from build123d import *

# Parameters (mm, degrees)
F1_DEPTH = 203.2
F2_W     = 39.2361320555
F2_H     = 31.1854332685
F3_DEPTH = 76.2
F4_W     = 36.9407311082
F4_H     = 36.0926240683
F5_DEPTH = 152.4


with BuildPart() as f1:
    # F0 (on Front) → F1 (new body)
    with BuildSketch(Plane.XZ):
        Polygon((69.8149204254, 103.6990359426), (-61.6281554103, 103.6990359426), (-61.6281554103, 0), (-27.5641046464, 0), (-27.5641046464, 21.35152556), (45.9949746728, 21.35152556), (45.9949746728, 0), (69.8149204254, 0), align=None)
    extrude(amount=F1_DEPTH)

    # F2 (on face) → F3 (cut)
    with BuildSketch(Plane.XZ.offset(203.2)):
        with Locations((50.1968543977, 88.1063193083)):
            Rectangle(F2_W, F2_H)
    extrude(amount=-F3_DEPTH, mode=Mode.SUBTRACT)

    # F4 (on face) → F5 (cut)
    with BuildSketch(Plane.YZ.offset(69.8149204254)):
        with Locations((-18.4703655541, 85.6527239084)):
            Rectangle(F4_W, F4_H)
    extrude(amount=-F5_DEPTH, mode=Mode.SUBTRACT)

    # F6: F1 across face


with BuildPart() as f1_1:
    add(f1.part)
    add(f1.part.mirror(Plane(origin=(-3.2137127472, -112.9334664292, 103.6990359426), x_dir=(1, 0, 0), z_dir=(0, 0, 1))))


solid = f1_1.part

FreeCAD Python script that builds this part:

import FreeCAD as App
import Part
import Sketcher
Q = App.Units.Quantity

doc = App.newDocument("Part")
body = doc.addObject("PartDesign::Body", "Body")

# Sketch on XZ plane
sketch1 = doc.addObject("Sketcher::SketchObject", "Sketch")
body.addObject(sketch1)
sketch1.AttachmentSupport = (doc.XZ_Plane, [""])
sketch1.MapMode = "FlatFace"
sketch1.addGeometry([
    Part.LineSegment(App.Vector(69.81492, 103.699036, 0), App.Vector(-61.628155, 103.699036, 0)),  # 0
    Part.LineSegment(App.Vector(-61.628155, 103.699036, 0), App.Vector(-61.628155, 0, 0)),  # 1
    Part.LineSegment(App.Vector(-61.628155, 0, 0), App.Vector(-27.564105, 0, 0)),  # 2
    Part.LineSegment(App.Vector(-27.564105, 0, 0), App.Vector(-27.564105, 21.351526, 0)),  # 3
    Part.LineSegment(App.Vector(-27.564105, 21.351526, 0), App.Vector(45.994975, 21.351526, 0)),  # 4
    Part.LineSegment(App.Vector(45.994975, 21.351526, 0), App.Vector(45.994975, 0, 0)),  # 5
    Part.LineSegment(App.Vector(45.994975, 0, 0), App.Vector(69.81492, 0, 0)),  # 6
    Part.LineSegment(App.Vector(69.81492, 0, 0), App.Vector(69.81492, 103.699036, 0)),  # 7
], False)
sketch1.addConstraint([
    Sketcher.Constraint("Coincident", 0, 2, 1, 1),
    Sketcher.Constraint("Coincident", 1, 2, 2, 1),
    Sketcher.Constraint("Coincident", 2, 2, 3, 1),
    Sketcher.Constraint("Coincident", 3, 2, 4, 1),
    Sketcher.Constraint("Coincident", 4, 2, 5, 1),
    Sketcher.Constraint("Coincident", 5, 2, 6, 1),
    Sketcher.Constraint("Coincident", 6, 2, 7, 1),
    Sketcher.Constraint("Coincident", 7, 2, 0, 1),
    Sketcher.Constraint("Horizontal", 0),
    Sketcher.Constraint("Vertical", 1),
    Sketcher.Constraint("Horizontal", 2),
    Sketcher.Constraint("Vertical", 3),
    Sketcher.Constraint("Horizontal", 4),
    Sketcher.Constraint("Vertical", 5),
    Sketcher.Constraint("Horizontal", 6),
    Sketcher.Constraint("Vertical", 7),
    Sketcher.Constraint("PointOnObject", 1, 2, -1),
    Sketcher.Constraint("PointOnObject", 5, 2, -1),
    Sketcher.Constraint("DistanceX", 2, 1, 2, 2, 34.064051),
    Sketcher.Constraint("DistanceX", 4, 1, 4, 2, 73.559079),
    Sketcher.Constraint("DistanceX", 0, 2, 0, 1, 131.443076),
    Sketcher.Constraint("DistanceY", 1, 2, 1, 1, 103.699036),
    Sketcher.Constraint("DistanceY", 3, 1, 3, 2, 21.351526),
    Sketcher.Constraint("DistanceX", -1, 1, 6, 2, 69.81492),
])
pad1 = doc.addObject("PartDesign::Pad", "Pad")
body.addObject(pad1)
pad1.Profile = sketch1
pad1.Length = Q("8 in")

# Sketch on XZ plane
sketch2 = doc.addObject("Sketcher::SketchObject", "Sketch001")
body.addObject(sketch2)
sketch2.AttachmentSupport = (doc.XZ_Plane, [""])
sketch2.MapMode = "FlatFace"
sketch2.AttachmentOffset = App.Placement(App.Vector(0, 0, 8 * 25.4), App.Rotation())
sketch2.addGeometry([
    Part.LineSegment(App.Vector(30.578788, 103.699036, 0), App.Vector(30.578788, 72.513603, 0)),
    Part.LineSegment(App.Vector(30.578788, 72.513603, 0), App.Vector(69.81492, 72.513603, 0)),
    Part.LineSegment(App.Vector(69.81492, 72.513603, 0), App.Vector(69.81492, 103.699036, 0)),
    Part.LineSegment(App.Vector(69.81492, 103.699036, 0), App.Vector(30.578788, 103.699036, 0)),
], False)
sketch2.addConstraint([
    Sketcher.Constraint("Coincident", 0, 2, 1, 1),
    Sketcher.Constraint("Coincident", 1, 2, 2, 1),
    Sketcher.Constraint("Coincident", 2, 2, 3, 1),
    Sketcher.Constraint("Coincident", 3, 2, 0, 1),
    Sketcher.Constraint("Vertical", 0),
    Sketcher.Constraint("Horizontal", 1),
    Sketcher.Constraint("Vertical", 2),
    Sketcher.Constraint("Horizontal", 3),
    Sketcher.Constraint("DistanceX", 1, 1, 1, 2, 39.236132),
    Sketcher.Constraint("DistanceY", 0, 2, 0, 1, 31.185433),
    Sketcher.Constraint("DistanceX", -1, 1, 0, 2, 30.578788),
    Sketcher.Constraint("DistanceY", -1, 1, 0, 2, 72.513603),
])
pocket1 = doc.addObject("PartDesign::Pocket", "Pocket")
body.addObject(pocket1)
pocket1.Profile = sketch2
pocket1.Length = Q("3 in")

# Sketch on YZ plane
sketch3 = doc.addObject("Sketcher::SketchObject", "Sketch002")
body.addObject(sketch3)
sketch3.AttachmentSupport = (doc.YZ_Plane, [""])
sketch3.MapMode = "FlatFace"
sketch3.AttachmentOffset = App.Placement(App.Vector(0, 0, 69.81492), App.Rotation())
sketch3.addGeometry([
    Part.LineSegment(App.Vector(-36.940731, 103.699036, 0), App.Vector(-36.940731, 67.606412, 0)),
    Part.LineSegment(App.Vector(-36.940731, 67.606412, 0), App.Vector(0, 67.606412, 0)),
    Part.LineSegment(App.Vector(0, 67.606412, 0), App.Vector(0, 103.699036, 0)),
    Part.LineSegment(App.Vector(0, 103.699036, 0), App.Vector(-36.940731, 103.699036, 0)),
], False)
sketch3.addConstraint([
    Sketcher.Constraint("Coincident", 0, 2, 1, 1),
    Sketcher.Constraint("Coincident", 1, 2, 2, 1),
    Sketcher.Constraint("Coincident", 2, 2, 3, 1),
    Sketcher.Constraint("Coincident", 3, 2, 0, 1),
    Sketcher.Constraint("Vertical", 0),
    Sketcher.Constraint("Horizontal", 1),
    Sketcher.Constraint("Vertical", 2),
    Sketcher.Constraint("Horizontal", 3),
    Sketcher.Constraint("PointOnObject", 1, 2, -2),
    Sketcher.Constraint("DistanceX", 1, 1, 1, 2, 36.940731),
    Sketcher.Constraint("DistanceY", 0, 2, 0, 1, 36.092624),
    Sketcher.Constraint("DistanceY", -1, 1, 0, 2, 67.606412),
])
pocket2 = doc.addObject("PartDesign::Pocket", "Pocket001")
body.addObject(pocket2)
pocket2.Profile = sketch3
pocket2.Length = Q("6 in")
body2 = doc.addObject("PartDesign::Body", "Body001")
doc.recompute()

body2.BaseFeature = body
doc.recompute()

mirroring = doc.addObject("Part::Mirroring", "Mirroring")
mirroring.Source = body
mirroring.Base = App.Vector(-3.213713, -112.933466, 103.699036)
mirroring.Normal = App.Vector(0, 0, 1)
body3 = doc.addObject("PartDesign::Body", "Body002")
body3.BaseFeature = mirroring
boolean = doc.addObject("PartDesign::Boolean", "Boolean")
body2.addObject(boolean)
boolean.Type = "Fuse"
boolean.addObjects([body3])
doc.recompute()
mirroring.Visibility = False

doc.recompute()
